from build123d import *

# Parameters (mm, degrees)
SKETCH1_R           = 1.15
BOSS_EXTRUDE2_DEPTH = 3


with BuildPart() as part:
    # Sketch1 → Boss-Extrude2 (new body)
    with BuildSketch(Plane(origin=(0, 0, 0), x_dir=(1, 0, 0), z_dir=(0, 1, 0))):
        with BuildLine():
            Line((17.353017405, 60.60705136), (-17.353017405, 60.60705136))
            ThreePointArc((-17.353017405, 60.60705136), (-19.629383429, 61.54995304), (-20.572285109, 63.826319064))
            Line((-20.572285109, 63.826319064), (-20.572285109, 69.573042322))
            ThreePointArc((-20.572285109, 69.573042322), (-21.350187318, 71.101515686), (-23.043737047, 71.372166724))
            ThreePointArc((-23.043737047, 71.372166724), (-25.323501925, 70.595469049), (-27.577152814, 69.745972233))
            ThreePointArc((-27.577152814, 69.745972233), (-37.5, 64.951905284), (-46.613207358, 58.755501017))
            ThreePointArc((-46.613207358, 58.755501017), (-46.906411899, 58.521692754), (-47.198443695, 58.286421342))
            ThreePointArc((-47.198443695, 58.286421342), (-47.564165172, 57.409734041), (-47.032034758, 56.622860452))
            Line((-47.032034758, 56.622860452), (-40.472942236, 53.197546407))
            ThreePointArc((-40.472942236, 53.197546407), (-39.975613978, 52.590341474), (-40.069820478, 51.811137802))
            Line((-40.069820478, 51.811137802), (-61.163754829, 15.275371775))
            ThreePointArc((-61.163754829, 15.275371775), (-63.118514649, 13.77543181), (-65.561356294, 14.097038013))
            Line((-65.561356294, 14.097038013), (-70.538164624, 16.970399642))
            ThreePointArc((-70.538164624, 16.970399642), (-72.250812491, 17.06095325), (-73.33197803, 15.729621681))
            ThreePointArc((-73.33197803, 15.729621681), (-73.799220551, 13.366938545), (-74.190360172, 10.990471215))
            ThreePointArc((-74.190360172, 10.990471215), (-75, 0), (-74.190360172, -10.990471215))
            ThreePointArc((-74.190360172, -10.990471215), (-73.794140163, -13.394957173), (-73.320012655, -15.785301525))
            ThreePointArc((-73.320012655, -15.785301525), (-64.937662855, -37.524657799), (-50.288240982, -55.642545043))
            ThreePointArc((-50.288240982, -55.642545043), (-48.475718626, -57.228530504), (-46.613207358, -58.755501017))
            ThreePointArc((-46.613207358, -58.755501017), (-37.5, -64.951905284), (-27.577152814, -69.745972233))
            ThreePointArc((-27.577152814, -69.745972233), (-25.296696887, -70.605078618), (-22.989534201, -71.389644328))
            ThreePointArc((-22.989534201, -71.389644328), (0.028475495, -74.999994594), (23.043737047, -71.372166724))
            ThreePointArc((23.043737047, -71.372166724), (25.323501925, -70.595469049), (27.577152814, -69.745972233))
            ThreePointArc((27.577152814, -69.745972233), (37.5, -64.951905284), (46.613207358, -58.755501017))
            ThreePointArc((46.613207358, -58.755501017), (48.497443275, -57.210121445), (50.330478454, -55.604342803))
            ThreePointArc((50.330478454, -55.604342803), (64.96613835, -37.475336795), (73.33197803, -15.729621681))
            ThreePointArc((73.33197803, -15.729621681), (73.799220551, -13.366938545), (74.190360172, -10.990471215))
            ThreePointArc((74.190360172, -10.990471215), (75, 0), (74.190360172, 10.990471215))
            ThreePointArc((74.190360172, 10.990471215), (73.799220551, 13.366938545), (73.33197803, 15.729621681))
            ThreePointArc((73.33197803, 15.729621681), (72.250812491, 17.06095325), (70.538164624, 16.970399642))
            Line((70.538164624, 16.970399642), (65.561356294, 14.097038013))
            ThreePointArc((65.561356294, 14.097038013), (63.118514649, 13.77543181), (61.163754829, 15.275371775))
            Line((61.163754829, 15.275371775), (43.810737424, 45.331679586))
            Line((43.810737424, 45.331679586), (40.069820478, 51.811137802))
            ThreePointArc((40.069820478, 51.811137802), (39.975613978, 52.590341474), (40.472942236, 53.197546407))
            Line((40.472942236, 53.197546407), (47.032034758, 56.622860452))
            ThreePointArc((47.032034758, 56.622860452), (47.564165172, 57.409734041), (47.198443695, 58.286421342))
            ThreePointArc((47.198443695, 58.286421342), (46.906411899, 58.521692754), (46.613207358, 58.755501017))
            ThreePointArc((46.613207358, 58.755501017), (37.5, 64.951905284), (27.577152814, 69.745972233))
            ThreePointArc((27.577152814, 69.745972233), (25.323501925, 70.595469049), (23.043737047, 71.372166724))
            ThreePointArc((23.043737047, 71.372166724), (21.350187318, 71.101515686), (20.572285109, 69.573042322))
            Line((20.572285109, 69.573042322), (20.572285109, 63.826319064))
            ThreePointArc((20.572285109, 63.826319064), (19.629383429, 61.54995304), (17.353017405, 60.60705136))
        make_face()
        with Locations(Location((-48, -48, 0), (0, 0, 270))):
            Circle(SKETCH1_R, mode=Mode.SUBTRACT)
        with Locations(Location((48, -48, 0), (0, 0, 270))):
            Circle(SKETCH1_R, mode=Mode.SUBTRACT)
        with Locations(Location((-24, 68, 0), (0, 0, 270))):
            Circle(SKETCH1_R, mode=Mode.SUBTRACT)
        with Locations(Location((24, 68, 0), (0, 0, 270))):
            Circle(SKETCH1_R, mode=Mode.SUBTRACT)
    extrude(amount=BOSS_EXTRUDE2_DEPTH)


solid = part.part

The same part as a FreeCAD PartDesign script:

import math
import FreeCAD as App
import Part
import Sketcher

V = App.Vector
Q = App.Units.Quantity

doc = App.newDocument("Part")
params = doc.addObject("Spreadsheet::Sheet", "Params")
for row, (alias, value) in enumerate([
    ("sketch1_radius", "75 mm"),
    ("sketch1_radius2", "1 mm"),
    ("sketch1_diameter", "2.3 mm"),
    ("pad1_length", "3 mm"),
], start=1):
    params.set(f"A{row}", alias)
    params.set(f"B{row}", "=" + value)
    params.setAlias(f"B{row}", alias)

body = doc.addObject("PartDesign::Body", "Body")

sketch1 = body.newObject("Sketcher::SketchObject", "Sketch")
sketch1.AttachmentSupport = (doc.getObject("XZ_Plane"), [""])
sketch1.MapMode = "FlatFace"
sketch1.addGeometry([
    Part.LineSegment(V(17.4, -60.6, 0), V(-17.4, -60.6, 0)),
    Part.ArcOfCircle(Part.Circle(V(-17.4, -63.8, 0), V(0, 0, 1), 3.2), math.radians(90), math.radians(180)),
    Part.LineSegment(V(-20.6, -63.8, 0), V(-20.6, -69.6, 0)),
    Part.ArcOfCircle(Part.Circle(V(-22.5, -69.6, 0), V(0, 0, 1), 1.9), math.radians(-108), math.radians(0)),
    Part.ArcOfCircle(Part.Circle(V(0, 0, 0), V(0, 0, 1), 75), math.radians(-111.57), math.radians(-107.89)),
    Part.ArcOfCircle(Part.Circle(V(0, 0, 0), V(0, 0, 1), 75), math.radians(-128.43), math.radians(-111.57)),
    Part.ArcOfCircle(Part.Circle(V(0, 0, 0), V(0, 0, 1), 75), math.radians(-129), math.radians(-128.43)),
    Part.ArcOfCircle(Part.Circle(V(-46.6, -57.5, 0), V(0, 0, 1), 1), math.radians(118), math.radians(231)),
    Part.LineSegment(V(-47, -56.6, 0), V(-40.5, -53.2, 0)),
    Part.ArcOfCircle(Part.Circle(V(-40.9, -52.3, 0), V(0, 0, 1), 1), math.radians(-62), math.radians(30)),
    Part.LineSegment(V(-40.1, -51.8, 0), V(-61.2, -15.3, 0)),
    Part.ArcOfCircle(Part.Circle(V(-64, -16.9, 0), V(0, 0, 1), 3.2), math.radians(30), math.radians(120)),
    Part.LineSegment(V(-65.6, -14.1, 0), V(-70.5, -17, 0)),
    Part.ArcOfCircle(Part.Circle(V(-71.5, -15.3, 0), V(0, 0, 1), 1.9), math.radians(-168), math.radians(-60)),
    Part.ArcOfCircle(Part.Circle(V(0, 0, 0), V(0, 0, 1), 75), math.radians(-171.57), math.radians(-167.89)),
    Part.ArcOfCircle(Part.Circle(V(0, 0, 0), V(0, 0, 1), 75), math.radians(171.57), math.radians(188.43)),
    Part.ArcOfCircle(Part.Circle(V(0, 0, 0), V(0, 0, 1), 75), math.radians(167.85), math.radians(171.57)),
    Part.ArcOfCircle(Part.Circle(V(0, 0, 0), V(0, 0, 1), 75), math.radians(132), math.radians(168)),
    Part.ArcOfCircle(Part.Circle(V(0, 0, 0), V(0, 0, 1), 75), math.radians(128.43), math.radians(132.11)),
    Part.ArcOfCircle(Part.Circle(V(0, 0, 0), V(0, 0, 1), 75), math.radians(111.57), math.radians(128.43)),
    Part.ArcOfCircle(Part.Circle(V(0, 0, 0), V(0, 0, 1), 75), math.radians(107.85), math.radians(111.57)),
    Part.ArcOfCircle(Part.Circle(V(0, 0, 0), V(0, 0, 1), 75), math.radians(72), math.radians(108)),
    Part.ArcOfCircle(Part.Circle(V(0, 0, 0), V(0, 0, 1), 75), math.radians(68.43), math.radians(72.11)),
    Part.ArcOfCircle(Part.Circle(V(0, 0, 0), V(0, 0, 1), 75), math.radians(51.57), math.radians(68.43)),
    Part.ArcOfCircle(Part.Circle(V(0, 0, 0), V(0, 0, 1), 75), math.radians(47.85), math.radians(51.57)),
    Part.ArcOfCircle(Part.Circle(V(0, 0, 0), V(0, 0, 1), 75), math.radians(12), math.radians(48)),
    Part.ArcOfCircle(Part.Circle(V(0, 0, 0), V(0, 0, 1), 75), math.radians(8.43), math.radians(12.11)),
    Part.ArcOfCircle(Part.Circle(V(0, 0, 0), V(0, 0, 1), 75), math.radians(-8.43), math.radians(8.43)),
    Part.ArcOfCircle(Part.Circle(V(0, 0, 0), V(0, 0, 1), 75), math.radians(-12.11), math.radians(-8.43)),
    Part.ArcOfCircle(Part.Circle(V(71.5, -15.3, 0), V(0, 0, 1), 1.9), math.radians(-120), math.radians(-12)),
    Part.LineSegment(V(70.5, -17, 0), V(65.6, -14.1, 0)),
    Part.ArcOfCircle(Part.Circle(V(64, -16.9, 0), V(0, 0, 1), 3.2), math.radians(60), math.radians(150)),
    Part.LineSegment(V(61.2, -15.3, 0), V(43.8, -45.3, 0)),
    Part.LineSegment(V(43.8, -45.3, 0), V(40.1, -51.8, 0)),
    Part.ArcOfCircle(Part.Circle(V(40.9, -52.3, 0), V(0, 0, 1), 1), math.radians(150), math.radians(242)),
    Part.LineSegment(V(40.5, -53.2, 0), V(47, -56.6, 0)),
    Part.ArcOfCircle(Part.Circle(V(46.6, -57.5, 0), V(0, 0, 1), 1), math.radians(-51), math.radians(62)),
    Part.ArcOfCircle(Part.Circle(V(0, 0, 0), V(0, 0, 1), 75), math.radians(-51.57), math.radians(-51)),
    Part.ArcOfCircle(Part.Circle(V(0, 0, 0), V(0, 0, 1), 75), math.radians(-68.43), math.radians(-51.57)),
    Part.ArcOfCircle(Part.Circle(V(0, 0, 0), V(0, 0, 1), 75), math.radians(-72.11), math.radians(-68.43)),
    Part.ArcOfCircle(Part.Circle(V(22.5, -69.6, 0), V(0, 0, 1), 1.9), math.radians(180), math.radians(288)),
    Part.LineSegment(V(20.6, -69.6, 0), V(20.6, -63.8, 0)),
    Part.ArcOfCircle(Part.Circle(V(17.4, -63.8, 0), V(0, 0, 1), 3.2), math.radians(0), math.radians(90)),
    Part.Circle(V(-48, 48, 0), V(0, 0, 1), 1.1),
    Part.Circle(V(48, 48, 0), V(0, 0, 1), 1.1),
    Part.Circle(V(-24, -68, 0), V(0, 0, 1), 1.1),
    Part.Circle(V(24, -68, 0), V(0, 0, 1), 1.1),
], False)
sketch1.addConstraint([
    Sketcher.Constraint("Tangent", 0, 2, 1, 1),
    Sketcher.Constraint("Tangent", 1, 2, 2, 1),
    Sketcher.Constraint("Tangent", 2, 2, 3, 2),
    Sketcher.Constraint("Tangent", 3, 1, 4, 2),
    Sketcher.Constraint("Tangent", 4, 1, 5, 2),
    Sketcher.Constraint("Tangent", 5, 1, 6, 2),
    Sketcher.Constraint("Tangent", 6, 1, 7, 2),
    Sketcher.Constraint("Tangent", 7, 1, 8, 1),
    Sketcher.Constraint("Tangent", 8, 2, 9, 1),
    Sketcher.Constraint("Tangent", 9, 2, 10, 1),
    Sketcher.Constraint("Tangent", 10, 2, 11, 1),
    Sketcher.Constraint("Tangent", 11, 2, 12, 1),
    Sketcher.Constraint("Tangent", 12, 2, 13, 2),
    Sketcher.Constraint("Tangent", 13, 1, 14, 2),
    Sketcher.Constraint("Tangent", 14, 1, 15, 2),
    Sketcher.Constraint("Tangent", 15, 1, 16, 2),
    Sketcher.Constraint("Tangent", 16, 1, 17, 2),
    Sketcher.Constraint("Tangent", 17, 1, 18, 2),
    Sketcher.Constraint("Tangent", 18, 1, 19, 2),
    Sketcher.Constraint("Tangent", 19, 1, 20, 2),
    Sketcher.Constraint("Tangent", 20, 1, 21, 2),
    Sketcher.Constraint("Tangent", 21, 1, 22, 2),
    Sketcher.Constraint("Tangent", 22, 1, 23, 2),
    Sketcher.Constraint("Tangent", 23, 1, 24, 2),
    Sketcher.Constraint("Tangent", 24, 1, 25, 2),
    Sketcher.Constraint("Tangent", 25, 1, 26, 2),
    Sketcher.Constraint("Tangent", 26, 1, 27, 2),
    Sketcher.Constraint("Tangent", 27, 1, 28, 2),
    Sketcher.Constraint("Tangent", 28, 1, 29, 2),
    Sketcher.Constraint("Tangent", 29, 1, 30, 1),
    Sketcher.Constraint("Tangent", 30, 2, 31, 1),
    Sketcher.Constraint("Tangent", 31, 2, 32, 1),
    Sketcher.Constraint("Coincident", 32, 2, 33, 1),
    Sketcher.Constraint("Tangent", 33, 2, 34, 1),
    Sketcher.Constraint("Tangent", 34, 2, 35, 1),
    Sketcher.Constraint("Tangent", 35, 2, 36, 2),
    Sketcher.Constraint("Tangent", 36, 1, 37, 2),
    Sketcher.Constraint("Tangent", 37, 1, 38, 2),
    Sketcher.Constraint("Tangent", 38, 1, 39, 2),
    Sketcher.Constraint("Tangent", 39, 1, 40, 2),
    Sketcher.Constraint("Tangent", 40, 1, 41, 1),
    Sketcher.Constraint("Tangent", 41, 2, 42, 1),
    Sketcher.Constraint("Tangent", 42, 2, 0, 1),
    Sketcher.Constraint("Horizontal", 0),
    Sketcher.Constraint("Vertical", 2),
    Sketcher.Constraint("Vertical", 41),
    Sketcher.Constraint("Coincident", 4, 3, -1, 1),
    Sketcher.Constraint("Coincident", 6, 3, -1, 1),
    Sketcher.Constraint("Coincident", 14, 3, -1, 1),
    Sketcher.Constraint("Coincident", 16, 3, -1, 1),
    Sketcher.Constraint("Coincident", 18, 3, -1, 1),
    Sketcher.Constraint("Coincident", 20, 3, -1, 1),
    Sketcher.Constraint("Coincident", 22, 3, -1, 1),
    Sketcher.Constraint("Coincident", 24, 3, -1, 1),
    Sketcher.Constraint("Coincident", 26, 3, -1, 1),
    Sketcher.Constraint("Coincident", 28, 3, -1, 1),
    Sketcher.Constraint("Coincident", 37, 3, -1, 1),
    Sketcher.Constraint("Coincident", 39, 3, -1, 1),
    Sketcher.Constraint("Equal", 7, 9),
    Sketcher.Constraint("Equal", 1, 11),
    Sketcher.Constraint("Equal", 3, 13),
    Sketcher.Constraint("Equal", 5, 14),
    Sketcher.Constraint("Equal", 13, 29),
    Sketcher.Constraint("Equal", 11, 31),
    Sketcher.Constraint("Equal", 9, 34),
    Sketcher.Constraint("Equal", 34, 36),
    Sketcher.Constraint("Equal", 6, 37),
    Sketcher.Constraint("Equal", 29, 40),
    Sketcher.Constraint("Equal", 31, 42),
    Sketcher.Constraint("Equal", 43, 44),
    Sketcher.Constraint("Equal", 44, 45),
    Sketcher.Constraint("Equal", 45, 46),
    Sketcher.Constraint("Symmetric", 11, 3, 31, 3, -2),
    Sketcher.Constraint("Symmetric", 9, 3, 34, 3, -2),
    Sketcher.Constraint("Symmetric", 43, 3, 44, 3, -2),
    Sketcher.Constraint("Symmetric", 45, 3, 46, 3, -2),
    Sketcher.Constraint("Perpendicular", 10, 12),
    Sketcher.Constraint("Perpendicular", 30, 32),
    Sketcher.Constraint("Parallel", 32, 33),
    Sketcher.Constraint("Horizontal", 7, 3, 36, 3),
    Sketcher.Constraint("Horizontal", 3, 3, 40, 3),
    Sketcher.Constraint("Horizontal", 19, 1, 22, 1),
    Sketcher.Constraint("Horizontal", 18, 1, 23, 1),
    Sketcher.Constraint("Horizontal", 15, 1, 26, 1),
    Sketcher.Constraint("Horizontal", 14, 1, 27, 1),
    Sketcher.Constraint("Horizontal", 5, 1, 37, 1),
    Sketcher.Constraint("Horizontal", 4, 1, 38, 1),
    Sketcher.Constraint("Vertical", 14, 1, 15, 1),
    Sketcher.Constraint("Vertical", 5, 1, 18, 1),
    Sketcher.Constraint("Vertical", 4, 1, 19, 1),
    Sketcher.Constraint("Vertical", 25, 1, 28, 1),
    Sketcher.Constraint("Vertical", 21, 1, 39, 1),
    Sketcher.Constraint("Radius", 4, Q("75 mm")),
    Sketcher.Constraint("Radius", 7, Q("1 mm")),
    Sketcher.Constraint("Diameter", 43, Q("2.3 mm")),
    Sketcher.Constraint("Angle", 10, Q("120 deg")),
    Sketcher.Constraint("DistanceX", 43, 3, -1, 1, Q("48 mm")),
    Sketcher.Constraint("DistanceY", -1, 1, 43, 3, Q("48 mm")),
    Sketcher.Constraint("DistanceX", 45, 3, -1, 1, Q("24 mm")),
    Sketcher.Constraint("DistanceY", 45, 3, -1, 1, Q("68 mm")),
    Sketcher.Constraint("Radius", 1, Q("3.219268 mm")),
    Sketcher.Constraint("Radius", 3, Q("1.890574 mm")),
    Sketcher.Constraint("DistanceY", 5, 1, -1, 1, Q("58.755501 mm")),
    Sketcher.Constraint("DistanceY", 12, 2, -1, 1, Q("16.9704 mm")),
    Sketcher.Constraint("DistanceY", -1, 1, 16, 1, Q("15.785302 mm")),
    Sketcher.Constraint("Distance", 10, Q("42.187869 mm")),
    Sketcher.Constraint("DistanceX", 0, 2, 0, 1, Q("34.706035 mm")),
    Sketcher.Constraint("DistanceY", 2, 2, 2, 1, Q("5.746723 mm")),
    Sketcher.Constraint("DistanceX", 7, 3, -1, 1, Q("46.569131 mm")),
    Sketcher.Constraint("DistanceX", 9, 2, -1, 1, Q("40.06982 mm")),
    Sketcher.Constraint("DistanceX", 14, 1, -1, 1, Q("74.19036 mm")),
    Sketcher.Constraint("DistanceX", 17, 1, -1, 1, Q("50.288241 mm")),
    Sketcher.Constraint("DistanceX", -1, 1, 24, 1, Q("50.330478 mm")),
    Sketcher.Constraint("DistanceY", 32, 2, -1, 1, Q("45.33168 mm")),
    Sketcher.Constraint("DistanceX", 4, 1, -1, 1, Q("27.577153 mm")),
    Sketcher.Constraint("DistanceX", 20, 1, -1, 1, Q("22.989534 mm")),
])
sketch1.setExpression("Constraints[92]", "Params.sketch1_radius")
sketch1.setExpression("Constraints[93]", "Params.sketch1_radius2")
sketch1.setExpression("Constraints[94]", "Params.sketch1_diameter")
pad1 = body.newObject("PartDesign::Pad", "Pad")
pad1.Profile = sketch1
pad1.setExpression("Length", "Params.pad1_length")
pad1.Reversed = True

doc.recompute()
